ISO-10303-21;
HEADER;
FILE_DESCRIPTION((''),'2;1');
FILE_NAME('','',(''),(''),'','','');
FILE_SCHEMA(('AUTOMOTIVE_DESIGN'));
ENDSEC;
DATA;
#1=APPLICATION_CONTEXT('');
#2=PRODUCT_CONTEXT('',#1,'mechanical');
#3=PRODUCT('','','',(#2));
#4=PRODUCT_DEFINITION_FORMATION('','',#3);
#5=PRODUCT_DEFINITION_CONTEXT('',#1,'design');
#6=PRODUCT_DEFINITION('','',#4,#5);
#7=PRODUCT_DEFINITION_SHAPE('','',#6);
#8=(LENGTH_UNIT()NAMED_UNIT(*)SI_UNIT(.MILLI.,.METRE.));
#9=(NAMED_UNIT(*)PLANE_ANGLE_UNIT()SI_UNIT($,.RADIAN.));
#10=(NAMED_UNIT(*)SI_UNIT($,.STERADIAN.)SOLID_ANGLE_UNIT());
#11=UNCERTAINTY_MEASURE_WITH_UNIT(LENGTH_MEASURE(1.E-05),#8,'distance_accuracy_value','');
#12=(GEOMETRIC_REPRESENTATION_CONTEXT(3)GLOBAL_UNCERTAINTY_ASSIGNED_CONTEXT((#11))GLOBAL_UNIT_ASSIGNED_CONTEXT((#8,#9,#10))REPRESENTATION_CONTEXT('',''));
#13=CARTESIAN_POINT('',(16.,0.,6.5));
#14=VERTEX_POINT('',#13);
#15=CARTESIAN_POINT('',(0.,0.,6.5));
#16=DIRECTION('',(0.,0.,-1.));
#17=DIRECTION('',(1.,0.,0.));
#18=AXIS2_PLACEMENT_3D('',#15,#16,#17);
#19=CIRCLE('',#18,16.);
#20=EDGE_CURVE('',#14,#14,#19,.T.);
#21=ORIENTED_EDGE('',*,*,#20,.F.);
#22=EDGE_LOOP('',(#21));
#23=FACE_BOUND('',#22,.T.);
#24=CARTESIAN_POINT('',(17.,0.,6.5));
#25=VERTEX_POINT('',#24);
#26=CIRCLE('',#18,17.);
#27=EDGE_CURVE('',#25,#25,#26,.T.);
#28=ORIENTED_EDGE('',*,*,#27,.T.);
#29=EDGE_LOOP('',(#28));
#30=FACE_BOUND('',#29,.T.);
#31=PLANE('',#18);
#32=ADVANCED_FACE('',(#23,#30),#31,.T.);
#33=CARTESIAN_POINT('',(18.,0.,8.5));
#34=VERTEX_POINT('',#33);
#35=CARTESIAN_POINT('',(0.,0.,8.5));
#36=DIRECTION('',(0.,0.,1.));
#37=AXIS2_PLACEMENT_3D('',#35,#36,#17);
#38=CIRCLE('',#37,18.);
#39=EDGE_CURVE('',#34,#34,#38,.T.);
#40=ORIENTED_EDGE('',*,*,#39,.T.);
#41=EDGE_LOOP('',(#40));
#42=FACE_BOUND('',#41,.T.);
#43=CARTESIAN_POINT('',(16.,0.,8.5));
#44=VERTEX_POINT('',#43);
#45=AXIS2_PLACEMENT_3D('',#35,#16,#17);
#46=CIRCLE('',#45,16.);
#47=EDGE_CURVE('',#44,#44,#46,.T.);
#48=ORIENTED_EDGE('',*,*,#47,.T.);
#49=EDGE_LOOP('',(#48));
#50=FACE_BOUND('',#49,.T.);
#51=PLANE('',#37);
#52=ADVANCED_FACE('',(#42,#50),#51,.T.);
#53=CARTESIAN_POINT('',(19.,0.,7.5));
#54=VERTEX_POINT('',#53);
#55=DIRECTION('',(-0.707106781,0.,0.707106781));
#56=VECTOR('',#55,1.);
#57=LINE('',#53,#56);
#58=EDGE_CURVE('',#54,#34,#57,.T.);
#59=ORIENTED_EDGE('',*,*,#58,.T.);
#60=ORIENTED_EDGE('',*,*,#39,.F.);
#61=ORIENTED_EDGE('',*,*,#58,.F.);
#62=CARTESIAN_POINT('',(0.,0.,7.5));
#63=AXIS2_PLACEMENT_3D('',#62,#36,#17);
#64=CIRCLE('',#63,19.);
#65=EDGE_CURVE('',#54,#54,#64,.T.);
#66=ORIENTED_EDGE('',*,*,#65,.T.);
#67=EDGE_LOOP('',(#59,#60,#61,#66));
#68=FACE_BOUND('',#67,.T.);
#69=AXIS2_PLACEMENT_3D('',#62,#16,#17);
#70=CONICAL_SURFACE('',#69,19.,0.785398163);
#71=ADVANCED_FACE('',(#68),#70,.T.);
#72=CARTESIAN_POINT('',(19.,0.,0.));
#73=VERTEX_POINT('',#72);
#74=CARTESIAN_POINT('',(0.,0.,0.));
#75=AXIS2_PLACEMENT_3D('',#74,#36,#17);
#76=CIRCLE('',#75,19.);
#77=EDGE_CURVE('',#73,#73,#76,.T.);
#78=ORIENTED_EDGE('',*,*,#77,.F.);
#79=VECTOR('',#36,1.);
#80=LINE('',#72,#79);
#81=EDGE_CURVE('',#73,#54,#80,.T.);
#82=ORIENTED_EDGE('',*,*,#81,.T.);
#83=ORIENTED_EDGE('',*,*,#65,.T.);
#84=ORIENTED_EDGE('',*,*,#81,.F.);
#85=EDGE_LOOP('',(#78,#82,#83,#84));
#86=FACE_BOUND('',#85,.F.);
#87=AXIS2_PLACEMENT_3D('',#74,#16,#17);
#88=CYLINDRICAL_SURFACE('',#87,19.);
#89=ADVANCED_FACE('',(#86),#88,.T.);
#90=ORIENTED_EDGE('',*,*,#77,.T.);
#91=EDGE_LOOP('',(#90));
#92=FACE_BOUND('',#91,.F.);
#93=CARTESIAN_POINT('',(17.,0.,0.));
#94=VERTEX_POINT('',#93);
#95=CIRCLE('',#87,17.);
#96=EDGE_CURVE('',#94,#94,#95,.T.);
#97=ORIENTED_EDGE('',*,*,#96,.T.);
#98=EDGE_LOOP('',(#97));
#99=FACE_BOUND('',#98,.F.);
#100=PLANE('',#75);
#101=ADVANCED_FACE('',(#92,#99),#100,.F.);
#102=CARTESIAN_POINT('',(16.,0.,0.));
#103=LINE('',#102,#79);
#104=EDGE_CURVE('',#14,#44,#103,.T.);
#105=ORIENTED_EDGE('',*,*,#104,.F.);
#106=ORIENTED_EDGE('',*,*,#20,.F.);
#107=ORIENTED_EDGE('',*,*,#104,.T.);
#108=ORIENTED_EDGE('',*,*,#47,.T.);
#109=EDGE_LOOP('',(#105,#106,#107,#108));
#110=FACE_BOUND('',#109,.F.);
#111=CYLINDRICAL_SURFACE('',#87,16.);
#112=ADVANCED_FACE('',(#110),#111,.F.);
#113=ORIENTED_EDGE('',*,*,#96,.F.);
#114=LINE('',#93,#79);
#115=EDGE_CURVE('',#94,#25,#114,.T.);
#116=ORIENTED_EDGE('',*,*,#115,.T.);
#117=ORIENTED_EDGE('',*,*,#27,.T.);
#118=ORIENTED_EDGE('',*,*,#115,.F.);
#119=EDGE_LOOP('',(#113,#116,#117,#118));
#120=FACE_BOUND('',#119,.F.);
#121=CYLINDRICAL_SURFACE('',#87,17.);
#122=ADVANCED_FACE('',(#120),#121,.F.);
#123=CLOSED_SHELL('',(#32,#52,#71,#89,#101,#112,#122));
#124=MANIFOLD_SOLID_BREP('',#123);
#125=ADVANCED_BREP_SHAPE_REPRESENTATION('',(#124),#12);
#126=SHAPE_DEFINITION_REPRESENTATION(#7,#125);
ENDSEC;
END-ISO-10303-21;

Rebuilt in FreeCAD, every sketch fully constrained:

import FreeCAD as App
import Part
import Sketcher


def edges_at(feature, points):
    """Names of the edges that pass closest to the given points."""
    edges = feature.Shape.Edges
    near = lambda p: min(range(len(edges)), key=lambda i: edges[i].distToShape(Part.Vertex(*p))[0])
    return sorted({f"Edge{near(p) + 1}" for p in points})

doc = App.newDocument("Part")
params = doc.addObject("Spreadsheet::Sheet", "Params")
for row, (alias, value) in enumerate([
    ("sketch1_diameter", "38 mm"),
    ("pad1_length", "8.5 mm"),
    ("sketch2_diameter", "32 mm"),
    ("pocket1_length", "10 mm"),
    ("sketch3_diameter", "34 mm"),
    ("pocket2_length", "6.5 mm"),
    ("chamfer_size", "1 mm"),
], start=1):
    params.set(f"A{row}", alias)
    params.set(f"B{row}", "=" + value)
    params.setAlias(f"B{row}", alias)

body = doc.addObject("PartDesign::Body", "Body")

sketch1 = body.newObject("Sketcher::SketchObject", "Sketch")
sketch1.AttachmentSupport = (doc.getObject("XY_Plane"), [""])
sketch1.MapMode = "FlatFace"
sketch1.addGeometry(Part.Circle(App.Vector(0, 0, 0), App.Vector(0, 0, 1), 19), False)
sketch1.addConstraint([
    Sketcher.Constraint("Coincident", 0, 3, -1, 1),
    Sketcher.Constraint("Diameter", 0, 38.0),
])
sketch1.setExpression("Constraints[1]", "Params.sketch1_diameter")
pad1 = body.newObject("PartDesign::Pad", "Pad")
pad1.Profile = sketch1
pad1.setExpression("Length", "Params.pad1_length")

sketch2 = body.newObject("Sketcher::SketchObject", "Sketch001")
sketch2.AttachmentSupport = (doc.getObject("XY_Plane"), [""])
sketch2.MapMode = "FlatFace"
sketch2.addGeometry(Part.Circle(App.Vector(0, 0, 0), App.Vector(0, 0, 1), 16), False)
sketch2.addConstraint([
    Sketcher.Constraint("Coincident", 0, 3, -1, 1),
    Sketcher.Constraint("Diameter", 0, 32.0),
])
sketch2.setExpression("Constraints[1]", "Params.sketch2_diameter")
pocket1 = body.newObject("PartDesign::Pocket", "Pocket")
pocket1.Profile = sketch2
pocket1.setExpression("Length", "Params.pocket1_length")
pocket1.Reversed = True

sketch3 = body.newObject("Sketcher::SketchObject", "Sketch002")
sketch3.AttachmentSupport = (doc.getObject("XY_Plane"), [""])
sketch3.MapMode = "FlatFace"
sketch3.addGeometry(Part.Circle(App.Vector(0, 0, 0), App.Vector(0, 0, 1), 17), False)
sketch3.addConstraint([
    Sketcher.Constraint("Coincident", 0, 3, -1, 1),
    Sketcher.Constraint("Diameter", 0, 34.0),
])
sketch3.setExpression("Constraints[1]", "Params.sketch3_diameter")
pocket2 = body.newObject("PartDesign::Pocket", "Pocket001")
pocket2.Profile = sketch3
pocket2.setExpression("Length", "Params.pocket2_length")
pocket2.Reversed = True
doc.recompute()

chamfer = body.newObject("PartDesign::Chamfer", "Chamfer")
chamfer.Base = (pocket2, edges_at(pocket2, [(-19, 0, 8.5)]))
chamfer.setExpression("Size", "Params.chamfer_size")

doc.recompute()
